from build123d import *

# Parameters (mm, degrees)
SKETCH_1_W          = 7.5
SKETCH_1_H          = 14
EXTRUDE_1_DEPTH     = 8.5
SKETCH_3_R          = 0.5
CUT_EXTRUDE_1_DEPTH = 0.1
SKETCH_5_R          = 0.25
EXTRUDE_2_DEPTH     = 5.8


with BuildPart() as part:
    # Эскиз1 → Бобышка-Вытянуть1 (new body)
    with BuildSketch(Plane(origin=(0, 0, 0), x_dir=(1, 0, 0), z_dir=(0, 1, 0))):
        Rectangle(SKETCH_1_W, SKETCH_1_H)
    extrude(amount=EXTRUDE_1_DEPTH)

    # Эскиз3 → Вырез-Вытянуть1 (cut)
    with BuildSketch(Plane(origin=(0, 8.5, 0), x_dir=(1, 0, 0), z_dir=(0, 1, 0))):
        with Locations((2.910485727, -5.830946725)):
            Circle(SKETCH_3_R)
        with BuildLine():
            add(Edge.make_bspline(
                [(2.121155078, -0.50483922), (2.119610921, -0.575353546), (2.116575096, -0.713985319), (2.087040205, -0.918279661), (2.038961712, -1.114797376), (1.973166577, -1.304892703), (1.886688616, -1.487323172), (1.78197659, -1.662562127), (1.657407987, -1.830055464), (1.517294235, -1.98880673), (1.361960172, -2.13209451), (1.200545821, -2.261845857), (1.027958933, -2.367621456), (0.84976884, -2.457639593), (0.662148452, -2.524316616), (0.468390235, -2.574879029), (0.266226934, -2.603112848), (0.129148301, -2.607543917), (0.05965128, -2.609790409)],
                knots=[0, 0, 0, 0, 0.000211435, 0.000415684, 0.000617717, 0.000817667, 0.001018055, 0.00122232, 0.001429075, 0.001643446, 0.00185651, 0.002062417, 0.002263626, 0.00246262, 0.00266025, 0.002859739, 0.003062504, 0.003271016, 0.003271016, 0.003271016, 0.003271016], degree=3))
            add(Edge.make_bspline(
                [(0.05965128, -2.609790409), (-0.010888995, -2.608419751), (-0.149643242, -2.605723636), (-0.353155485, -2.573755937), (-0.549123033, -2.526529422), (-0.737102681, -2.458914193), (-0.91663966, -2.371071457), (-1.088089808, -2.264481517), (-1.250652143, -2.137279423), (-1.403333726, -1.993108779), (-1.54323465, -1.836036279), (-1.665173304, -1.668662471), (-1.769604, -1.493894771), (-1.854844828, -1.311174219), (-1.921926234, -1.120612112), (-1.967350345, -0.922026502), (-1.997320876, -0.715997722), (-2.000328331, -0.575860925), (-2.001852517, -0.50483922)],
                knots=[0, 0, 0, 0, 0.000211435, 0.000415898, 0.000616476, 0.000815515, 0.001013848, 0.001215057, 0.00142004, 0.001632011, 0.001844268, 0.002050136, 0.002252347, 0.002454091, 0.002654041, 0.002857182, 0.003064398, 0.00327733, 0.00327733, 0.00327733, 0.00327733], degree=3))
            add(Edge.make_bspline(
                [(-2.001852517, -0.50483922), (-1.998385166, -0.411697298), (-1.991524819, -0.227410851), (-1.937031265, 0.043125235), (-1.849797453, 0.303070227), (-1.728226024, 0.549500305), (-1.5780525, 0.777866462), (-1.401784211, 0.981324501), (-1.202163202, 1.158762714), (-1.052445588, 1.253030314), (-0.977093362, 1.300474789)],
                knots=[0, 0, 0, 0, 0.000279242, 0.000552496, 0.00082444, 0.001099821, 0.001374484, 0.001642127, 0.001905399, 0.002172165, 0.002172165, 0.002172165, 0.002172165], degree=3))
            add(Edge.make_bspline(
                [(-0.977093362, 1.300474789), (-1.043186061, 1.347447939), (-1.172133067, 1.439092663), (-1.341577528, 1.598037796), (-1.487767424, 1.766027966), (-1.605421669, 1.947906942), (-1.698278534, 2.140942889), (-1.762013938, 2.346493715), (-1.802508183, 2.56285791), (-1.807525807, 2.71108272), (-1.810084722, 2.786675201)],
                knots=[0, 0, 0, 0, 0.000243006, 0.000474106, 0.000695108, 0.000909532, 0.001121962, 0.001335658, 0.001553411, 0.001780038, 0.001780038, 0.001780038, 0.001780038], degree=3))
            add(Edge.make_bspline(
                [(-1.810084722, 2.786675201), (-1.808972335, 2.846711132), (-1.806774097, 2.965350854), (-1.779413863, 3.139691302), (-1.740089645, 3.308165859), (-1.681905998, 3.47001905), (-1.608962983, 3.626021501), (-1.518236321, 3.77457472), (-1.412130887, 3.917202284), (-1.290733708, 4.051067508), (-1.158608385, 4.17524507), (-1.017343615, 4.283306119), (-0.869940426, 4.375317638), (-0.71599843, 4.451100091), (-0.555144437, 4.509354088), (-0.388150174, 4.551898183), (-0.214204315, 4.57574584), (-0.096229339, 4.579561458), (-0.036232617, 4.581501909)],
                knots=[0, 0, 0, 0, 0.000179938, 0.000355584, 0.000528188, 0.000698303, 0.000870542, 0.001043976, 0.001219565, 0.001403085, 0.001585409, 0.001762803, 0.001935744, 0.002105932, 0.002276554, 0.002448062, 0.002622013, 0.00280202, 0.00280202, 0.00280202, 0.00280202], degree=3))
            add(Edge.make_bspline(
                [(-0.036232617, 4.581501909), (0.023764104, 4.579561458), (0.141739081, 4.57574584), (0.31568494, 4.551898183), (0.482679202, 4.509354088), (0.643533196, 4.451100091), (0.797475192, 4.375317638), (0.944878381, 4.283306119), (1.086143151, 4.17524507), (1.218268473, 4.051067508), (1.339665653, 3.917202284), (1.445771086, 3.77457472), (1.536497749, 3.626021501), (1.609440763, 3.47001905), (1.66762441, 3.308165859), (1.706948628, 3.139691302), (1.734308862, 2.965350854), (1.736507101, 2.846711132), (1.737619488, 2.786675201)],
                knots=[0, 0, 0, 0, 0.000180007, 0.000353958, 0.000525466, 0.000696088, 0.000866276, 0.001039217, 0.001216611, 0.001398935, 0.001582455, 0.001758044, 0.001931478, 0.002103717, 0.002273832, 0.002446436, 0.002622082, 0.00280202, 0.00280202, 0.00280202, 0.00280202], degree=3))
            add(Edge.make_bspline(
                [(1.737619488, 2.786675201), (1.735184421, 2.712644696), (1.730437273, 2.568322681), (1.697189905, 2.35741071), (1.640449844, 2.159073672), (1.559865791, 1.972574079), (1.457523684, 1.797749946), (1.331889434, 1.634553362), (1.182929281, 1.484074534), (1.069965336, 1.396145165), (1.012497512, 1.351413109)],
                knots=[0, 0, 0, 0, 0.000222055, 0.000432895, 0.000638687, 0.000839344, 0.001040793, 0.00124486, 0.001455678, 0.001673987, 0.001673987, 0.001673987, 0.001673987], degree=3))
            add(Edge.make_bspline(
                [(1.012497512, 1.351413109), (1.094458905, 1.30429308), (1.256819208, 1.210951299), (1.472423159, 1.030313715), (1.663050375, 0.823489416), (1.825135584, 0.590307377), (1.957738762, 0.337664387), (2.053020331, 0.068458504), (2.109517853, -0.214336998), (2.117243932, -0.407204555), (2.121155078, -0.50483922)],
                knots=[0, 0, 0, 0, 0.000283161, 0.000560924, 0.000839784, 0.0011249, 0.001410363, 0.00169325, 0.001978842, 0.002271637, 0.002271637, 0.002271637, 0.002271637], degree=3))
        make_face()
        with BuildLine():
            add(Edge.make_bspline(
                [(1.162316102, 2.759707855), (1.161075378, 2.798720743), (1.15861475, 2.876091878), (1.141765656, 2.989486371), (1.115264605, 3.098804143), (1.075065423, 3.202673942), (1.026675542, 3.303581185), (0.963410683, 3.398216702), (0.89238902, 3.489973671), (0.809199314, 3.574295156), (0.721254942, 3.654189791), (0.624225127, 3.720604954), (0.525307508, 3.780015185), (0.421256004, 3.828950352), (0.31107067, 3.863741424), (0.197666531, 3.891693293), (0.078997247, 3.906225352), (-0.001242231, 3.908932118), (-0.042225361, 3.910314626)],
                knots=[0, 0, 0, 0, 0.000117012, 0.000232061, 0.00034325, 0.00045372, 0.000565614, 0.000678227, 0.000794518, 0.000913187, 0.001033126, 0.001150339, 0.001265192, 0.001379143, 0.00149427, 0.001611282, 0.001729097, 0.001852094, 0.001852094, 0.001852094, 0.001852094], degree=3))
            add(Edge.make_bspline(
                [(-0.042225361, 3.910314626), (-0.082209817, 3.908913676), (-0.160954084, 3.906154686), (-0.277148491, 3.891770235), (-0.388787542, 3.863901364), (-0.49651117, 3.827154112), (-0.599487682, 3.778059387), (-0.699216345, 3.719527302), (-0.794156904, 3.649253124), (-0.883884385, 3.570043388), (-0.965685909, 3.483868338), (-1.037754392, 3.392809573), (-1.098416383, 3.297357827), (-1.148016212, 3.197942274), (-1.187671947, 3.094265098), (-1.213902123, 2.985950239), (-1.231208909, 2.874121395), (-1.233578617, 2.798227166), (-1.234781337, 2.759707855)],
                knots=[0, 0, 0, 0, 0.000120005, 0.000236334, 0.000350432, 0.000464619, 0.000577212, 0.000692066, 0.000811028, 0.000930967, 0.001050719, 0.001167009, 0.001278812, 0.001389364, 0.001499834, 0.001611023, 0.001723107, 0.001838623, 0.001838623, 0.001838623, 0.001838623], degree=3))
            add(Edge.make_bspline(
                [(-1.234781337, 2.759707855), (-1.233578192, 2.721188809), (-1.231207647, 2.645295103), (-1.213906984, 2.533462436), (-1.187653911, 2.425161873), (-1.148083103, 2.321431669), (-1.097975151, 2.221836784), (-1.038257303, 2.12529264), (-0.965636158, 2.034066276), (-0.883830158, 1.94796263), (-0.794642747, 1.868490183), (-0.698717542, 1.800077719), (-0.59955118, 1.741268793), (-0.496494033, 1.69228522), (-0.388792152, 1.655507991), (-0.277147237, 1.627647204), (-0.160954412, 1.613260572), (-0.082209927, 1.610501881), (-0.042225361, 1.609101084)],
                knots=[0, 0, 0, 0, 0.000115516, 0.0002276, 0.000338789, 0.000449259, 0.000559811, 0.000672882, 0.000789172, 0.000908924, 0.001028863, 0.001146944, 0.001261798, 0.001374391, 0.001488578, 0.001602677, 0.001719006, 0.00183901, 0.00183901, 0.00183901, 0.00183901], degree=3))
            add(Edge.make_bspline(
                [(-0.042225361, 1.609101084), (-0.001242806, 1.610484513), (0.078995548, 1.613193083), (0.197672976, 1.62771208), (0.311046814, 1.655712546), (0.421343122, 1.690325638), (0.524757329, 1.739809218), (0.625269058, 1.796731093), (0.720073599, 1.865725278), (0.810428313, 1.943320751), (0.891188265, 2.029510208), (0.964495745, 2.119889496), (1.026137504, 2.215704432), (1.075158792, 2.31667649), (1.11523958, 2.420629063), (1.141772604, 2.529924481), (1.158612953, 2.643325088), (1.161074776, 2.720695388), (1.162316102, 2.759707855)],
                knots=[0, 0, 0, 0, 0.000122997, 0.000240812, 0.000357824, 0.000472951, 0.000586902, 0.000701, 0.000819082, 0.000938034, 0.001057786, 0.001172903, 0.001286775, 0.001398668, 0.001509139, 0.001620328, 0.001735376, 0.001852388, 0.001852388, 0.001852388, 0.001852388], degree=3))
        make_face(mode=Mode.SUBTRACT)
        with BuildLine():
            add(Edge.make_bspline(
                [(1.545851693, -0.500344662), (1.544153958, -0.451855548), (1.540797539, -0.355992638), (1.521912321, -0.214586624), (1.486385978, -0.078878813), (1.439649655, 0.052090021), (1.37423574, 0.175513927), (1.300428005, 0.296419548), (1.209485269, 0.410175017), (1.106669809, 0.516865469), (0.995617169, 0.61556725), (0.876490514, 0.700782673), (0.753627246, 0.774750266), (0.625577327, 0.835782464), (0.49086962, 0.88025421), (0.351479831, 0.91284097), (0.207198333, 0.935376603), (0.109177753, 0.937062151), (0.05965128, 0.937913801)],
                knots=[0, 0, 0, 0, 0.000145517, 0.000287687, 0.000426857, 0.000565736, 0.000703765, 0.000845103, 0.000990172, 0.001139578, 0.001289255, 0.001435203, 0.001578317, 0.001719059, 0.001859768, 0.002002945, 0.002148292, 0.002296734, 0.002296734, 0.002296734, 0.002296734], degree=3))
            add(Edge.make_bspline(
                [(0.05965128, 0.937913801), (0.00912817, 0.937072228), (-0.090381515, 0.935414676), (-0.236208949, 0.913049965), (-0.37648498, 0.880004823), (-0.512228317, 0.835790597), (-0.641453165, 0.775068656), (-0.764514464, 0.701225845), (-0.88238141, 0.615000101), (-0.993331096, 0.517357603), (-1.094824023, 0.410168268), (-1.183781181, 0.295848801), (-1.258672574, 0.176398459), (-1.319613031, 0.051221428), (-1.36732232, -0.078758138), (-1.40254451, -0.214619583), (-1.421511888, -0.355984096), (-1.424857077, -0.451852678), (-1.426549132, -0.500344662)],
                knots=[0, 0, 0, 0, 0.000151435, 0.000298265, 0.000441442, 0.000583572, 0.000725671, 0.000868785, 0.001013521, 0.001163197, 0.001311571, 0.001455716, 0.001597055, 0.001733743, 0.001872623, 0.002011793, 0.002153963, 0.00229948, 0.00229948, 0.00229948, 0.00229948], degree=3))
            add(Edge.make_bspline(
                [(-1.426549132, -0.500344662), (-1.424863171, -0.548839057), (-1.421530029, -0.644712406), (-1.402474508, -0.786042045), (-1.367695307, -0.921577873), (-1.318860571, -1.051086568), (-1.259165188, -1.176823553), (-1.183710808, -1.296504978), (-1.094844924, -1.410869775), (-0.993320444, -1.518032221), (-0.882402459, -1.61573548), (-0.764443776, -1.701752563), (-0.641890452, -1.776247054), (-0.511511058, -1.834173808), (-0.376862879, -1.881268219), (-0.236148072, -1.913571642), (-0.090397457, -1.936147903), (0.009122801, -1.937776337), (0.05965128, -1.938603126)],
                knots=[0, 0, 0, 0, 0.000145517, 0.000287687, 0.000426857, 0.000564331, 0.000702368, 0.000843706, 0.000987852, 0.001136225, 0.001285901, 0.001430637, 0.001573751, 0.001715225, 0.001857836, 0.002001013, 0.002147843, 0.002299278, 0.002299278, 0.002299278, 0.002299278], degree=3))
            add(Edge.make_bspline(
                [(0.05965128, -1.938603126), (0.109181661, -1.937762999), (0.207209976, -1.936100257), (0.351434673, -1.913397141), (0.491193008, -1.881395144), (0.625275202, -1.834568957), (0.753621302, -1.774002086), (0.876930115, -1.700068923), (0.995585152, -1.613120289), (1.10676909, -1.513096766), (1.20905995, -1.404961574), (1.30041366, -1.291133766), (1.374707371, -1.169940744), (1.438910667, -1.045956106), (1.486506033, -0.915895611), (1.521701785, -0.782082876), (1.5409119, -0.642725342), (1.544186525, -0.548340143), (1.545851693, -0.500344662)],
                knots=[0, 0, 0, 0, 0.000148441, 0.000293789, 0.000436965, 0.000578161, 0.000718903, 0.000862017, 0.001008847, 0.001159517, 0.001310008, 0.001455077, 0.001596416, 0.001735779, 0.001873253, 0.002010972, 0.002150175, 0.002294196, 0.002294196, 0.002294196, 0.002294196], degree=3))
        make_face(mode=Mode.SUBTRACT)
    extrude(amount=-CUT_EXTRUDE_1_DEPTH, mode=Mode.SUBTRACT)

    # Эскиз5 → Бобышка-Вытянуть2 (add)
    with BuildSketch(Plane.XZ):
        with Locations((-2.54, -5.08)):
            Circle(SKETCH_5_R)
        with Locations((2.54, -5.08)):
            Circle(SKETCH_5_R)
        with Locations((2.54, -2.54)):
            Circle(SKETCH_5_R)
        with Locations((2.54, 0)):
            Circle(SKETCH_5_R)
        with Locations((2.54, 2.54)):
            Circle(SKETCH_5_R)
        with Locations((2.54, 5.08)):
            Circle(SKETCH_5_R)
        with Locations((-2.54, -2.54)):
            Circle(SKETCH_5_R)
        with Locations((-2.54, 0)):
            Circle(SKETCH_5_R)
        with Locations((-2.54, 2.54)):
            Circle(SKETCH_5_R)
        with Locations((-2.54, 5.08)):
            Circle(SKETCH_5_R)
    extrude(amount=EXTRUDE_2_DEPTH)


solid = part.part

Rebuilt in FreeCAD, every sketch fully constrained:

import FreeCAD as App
import Part
import Sketcher
Q = App.Units.Quantity

doc = App.newDocument("Part")
body = doc.addObject("PartDesign::Body", "Body")

sketch1 = body.newObject("Sketcher::SketchObject", "Sketch")
sketch1.AttachmentSupport = (doc.getObject("XZ_Plane"), [""])
sketch1.MapMode = "FlatFace"
sketch1.addGeometry(Part.LineSegment(App.Vector(-4, -7, 0), App.Vector(-4, 7, 0)), False)
sketch1.addGeometry(Part.LineSegment(App.Vector(-4, 7, 0), App.Vector(4, 7, 0)), False)
sketch1.addGeometry(Part.LineSegment(App.Vector(4, 7, 0), App.Vector(4, -7, 0)), False)
sketch1.addGeometry(Part.LineSegment(App.Vector(4, -7, 0), App.Vector(-4, -7, 0)), False)
sketch1.addConstraint(Sketcher.Constraint("Coincident", 0, 2, 1, 1))
sketch1.addConstraint(Sketcher.Constraint("Coincident", 1, 2, 2, 1))
sketch1.addConstraint(Sketcher.Constraint("Coincident", 2, 2, 3, 1))
sketch1.addConstraint(Sketcher.Constraint("Coincident", 3, 2, 0, 1))
sketch1.addConstraint(Sketcher.Constraint("Vertical", 0))
sketch1.addConstraint(Sketcher.Constraint("Horizontal", 1))
sketch1.addConstraint(Sketcher.Constraint("Vertical", 2))
sketch1.addConstraint(Sketcher.Constraint("Horizontal", 3))
sketch1.addConstraint(Sketcher.Constraint("Symmetric", 0, 2, 2, 2, -1, 1))
sketch1.addConstraint(Sketcher.Constraint("DistanceY", 0, 1, 0, 2, Q("14 mm")))
sketch1.addConstraint(Sketcher.Constraint("DistanceX", 1, 1, 1, 2, Q("7.5 mm")))
pad1 = body.newObject("PartDesign::Pad", "Pad")
pad1.Profile = sketch1
pad1.Length = 8.5
pad1.Reversed = True

sketch2 = body.newObject("Sketcher::SketchObject", "Sketch001")
sketch2.AttachmentSupport = (doc.getObject("XZ_Plane"), [""])
sketch2.MapMode = "FlatFace"
sketch2.AttachmentOffset = App.Placement(App.Vector(0, 0, -8.5), App.Rotation())
sketch2.addGeometry(Part.Circle(App.Vector(2.910486, 5.830947, 0), App.Vector(0, 0, 1), 0.5), False)
sketch2.addGeometry(Part.BSplineCurve([App.Vector(2.121155, 0.504839, 0), App.Vector(2.119611, 0.575354, 0), App.Vector(2.116575, 0.713985, 0), App.Vector(2.08704, 0.91828, 0), App.Vector(2.038962, 1.114797, 0), App.Vector(1.973167, 1.304893, 0), App.Vector(1.886689, 1.487323, 0), App.Vector(1.781977, 1.662562, 0), App.Vector(1.657408, 1.830055, 0), App.Vector(1.517294, 1.988807, 0), App.Vector(1.36196, 2.132095, 0), App.Vector(1.200546, 2.261846, 0), App.Vector(1.027959, 2.367621, 0), App.Vector(0.849769, 2.45764, 0), App.Vector(0.662148, 2.524317, 0), App.Vector(0.46839, 2.574879, 0), App.Vector(0.266227, 2.603113, 0), App.Vector(0.129148, 2.607544, 0), App.Vector(0.059651, 2.60979, 0)], [4, 1, 1, 1, 1, 1, 1, 1, 1, 1, 1, 1, 1, 1, 1, 1, 4], [0, 0.000211435, 0.000415684, 0.000617717, 0.000817667, 0.001018055, 0.00122232, 0.001429075, 0.001643446, 0.00185651, 0.002062417, 0.002263626, 0.00246262, 0.00266025, 0.002859739, 0.003062504, 0.003271016], False, 3, [1, 1, 1, 1, 1, 1, 1, 1, 1, 1, 1, 1, 1, 1, 1, 1, 1, 1, 1], False), False)
sketch2.addGeometry(Part.BSplineCurve([App.Vector(1.012498, -1.351413, 0), App.Vector(1.094459, -1.304293, 0), App.Vector(1.256819, -1.210951, 0), App.Vector(1.472423, -1.030314, 0), App.Vector(1.66305, -0.823489, 0), App.Vector(1.825136, -0.590307, 0), App.Vector(1.957739, -0.337664, 0), App.Vector(2.05302, -0.068459, 0), App.Vector(2.109518, 0.214337, 0), App.Vector(2.117244, 0.407205, 0), App.Vector(2.121155, 0.504839, 0)], [4, 1, 1, 1, 1, 1, 1, 1, 4], [0, 0.000283161, 0.000560924, 0.000839784, 0.0011249, 0.001410363, 0.00169325, 0.001978842, 0.002271637], False, 3, [1, 1, 1, 1, 1, 1, 1, 1, 1, 1, 1], False), False)
sketch2.addGeometry(Part.BSplineCurve([App.Vector(1.737619, -2.786675, 0), App.Vector(1.735184, -2.712645, 0), App.Vector(1.730437, -2.568323, 0), App.Vector(1.69719, -2.357411, 0), App.Vector(1.64045, -2.159074, 0), App.Vector(1.559866, -1.972574, 0), App.Vector(1.457524, -1.79775, 0), App.Vector(1.331889, -1.634553, 0), App.Vector(1.182929, -1.484075, 0), App.Vector(1.069965, -1.396145, 0), App.Vector(1.012498, -1.351413, 0)], [4, 1, 1, 1, 1, 1, 1, 1, 4], [0, 0.000222055, 0.000432895, 0.000638687, 0.000839344, 0.001040793, 0.00124486, 0.001455678, 0.001673987], False, 3, [1, 1, 1, 1, 1, 1, 1, 1, 1, 1, 1], False), False)
sketch2.addGeometry(Part.BSplineCurve([App.Vector(-0.036233, -4.581502, 0), App.Vector(0.023764, -4.579561, 0), App.Vector(0.141739, -4.575746, 0), App.Vector(0.315685, -4.551898, 0), App.Vector(0.482679, -4.509354, 0), App.Vector(0.643533, -4.4511, 0), App.Vector(0.797475, -4.375318, 0), App.Vector(0.944878, -4.283306, 0), App.Vector(1.086143, -4.175245, 0), App.Vector(1.218268, -4.051068, 0), App.Vector(1.339666, -3.917202, 0), App.Vector(1.445771, -3.774575, 0), App.Vector(1.536498, -3.626022, 0), App.Vector(1.609441, -3.470019, 0), App.Vector(1.667624, -3.308166, 0), App.Vector(1.706949, -3.139691, 0), App.Vector(1.734309, -2.965351, 0), App.Vector(1.736507, -2.846711, 0), App.Vector(1.737619, -2.786675, 0)], [4, 1, 1, 1, 1, 1, 1, 1, 1, 1, 1, 1, 1, 1, 1, 1, 4], [0, 0.000180007, 0.000353958, 0.000525466, 0.000696088, 0.000866276, 0.001039217, 0.001216611, 0.001398935, 0.001582455, 0.001758044, 0.001931478, 0.002103717, 0.002273832, 0.002446436, 0.002622082, 0.00280202], False, 3, [1, 1, 1, 1, 1, 1, 1, 1, 1, 1, 1, 1, 1, 1, 1, 1, 1, 1, 1], False), False)
sketch2.addGeometry(Part.BSplineCurve([App.Vector(-1.810085, -2.786675, 0), App.Vector(-1.808972, -2.846711, 0), App.Vector(-1.806774, -2.965351, 0), App.Vector(-1.779414, -3.139691, 0), App.Vector(-1.74009, -3.308166, 0), App.Vector(-1.681906, -3.470019, 0), App.Vector(-1.608963, -3.626022, 0), App.Vector(-1.518236, -3.774575, 0), App.Vector(-1.412131, -3.917202, 0), App.Vector(-1.290734, -4.051068, 0), App.Vector(-1.158608, -4.175245, 0), App.Vector(-1.017344, -4.283306, 0), App.Vector(-0.86994, -4.375318, 0), App.Vector(-0.715998, -4.4511, 0), App.Vector(-0.555144, -4.509354, 0), App.Vector(-0.38815, -4.551898, 0), App.Vector(-0.214204, -4.575746, 0), App.Vector(-0.096229, -4.579561, 0), App.Vector(-0.036233, -4.581502, 0)], [4, 1, 1, 1, 1, 1, 1, 1, 1, 1, 1, 1, 1, 1, 1, 1, 4], [0, 0.000179938, 0.000355584, 0.000528188, 0.000698303, 0.000870542, 0.001043976, 0.001219565, 0.001403085, 0.001585409, 0.001762803, 0.001935744, 0.002105932, 0.002276554, 0.002448062, 0.002622013, 0.00280202], False, 3, [1, 1, 1, 1, 1, 1, 1, 1, 1, 1, 1, 1, 1, 1, 1, 1, 1, 1, 1], False), False)
sketch2.addGeometry(Part.BSplineCurve([App.Vector(-0.977093, -1.300475, 0), App.Vector(-1.043186, -1.347448, 0), App.Vector(-1.172133, -1.439093, 0), App.Vector(-1.341578, -1.598038, 0), App.Vector(-1.487767, -1.766028, 0), App.Vector(-1.605422, -1.947907, 0), App.Vector(-1.698279, -2.140943, 0), App.Vector(-1.762014, -2.346494, 0), App.Vector(-1.802508, -2.562858, 0), App.Vector(-1.807526, -2.711083, 0), App.Vector(-1.810085, -2.786675, 0)], [4, 1, 1, 1, 1, 1, 1, 1, 4], [0, 0.000243006, 0.000474106, 0.000695108, 0.000909532, 0.001121962, 0.001335658, 0.001553411, 0.001780038], False, 3, [1, 1, 1, 1, 1, 1, 1, 1, 1, 1, 1], False), False)
sketch2.addGeometry(Part.BSplineCurve([App.Vector(-2.001853, 0.504839, 0), App.Vector(-1.998385, 0.411697, 0), App.Vector(-1.991525, 0.227411, 0), App.Vector(-1.937031, -0.043125, 0), App.Vector(-1.849797, -0.30307, 0), App.Vector(-1.728226, -0.5495, 0), App.Vector(-1.578053, -0.777866, 0), App.Vector(-1.401784, -0.981325, 0), App.Vector(-1.202163, -1.158763, 0), App.Vector(-1.052446, -1.25303, 0), App.Vector(-0.977093, -1.300475, 0)], [4, 1, 1, 1, 1, 1, 1, 1, 4], [0, 0.000279242, 0.000552496, 0.00082444, 0.001099821, 0.001374484, 0.001642127, 0.001905399, 0.002172165], False, 3, [1, 1, 1, 1, 1, 1, 1, 1, 1, 1, 1], False), False)
sketch2.addGeometry(Part.BSplineCurve([App.Vector(0.059651, 2.60979, 0), App.Vector(-0.010889, 2.60842, 0), App.Vector(-0.149643, 2.605724, 0), App.Vector(-0.353155, 2.573756, 0), App.Vector(-0.549123, 2.526529, 0), App.Vector(-0.737103, 2.458914, 0), App.Vector(-0.91664, 2.371071, 0), App.Vector(-1.08809, 2.264482, 0), App.Vector(-1.250652, 2.137279, 0), App.Vector(-1.403334, 1.993109, 0), App.Vector(-1.543235, 1.836036, 0), App.Vector(-1.665173, 1.668662, 0), App.Vector(-1.769604, 1.493895, 0), App.Vector(-1.854845, 1.311174, 0), App.Vector(-1.921926, 1.120612, 0), App.Vector(-1.96735, 0.922027, 0), App.Vector(-1.997321, 0.715998, 0), App.Vector(-2.000328, 0.575861, 0), App.Vector(-2.001853, 0.504839, 0)], [4, 1, 1, 1, 1, 1, 1, 1, 1, 1, 1, 1, 1, 1, 1, 1, 4], [0, 0.000211435, 0.000415898, 0.000616476, 0.000815515, 0.001013848, 0.001215057, 0.00142004, 0.001632011, 0.001844268, 0.002050136, 0.002252347, 0.002454091, 0.002654041, 0.002857182, 0.003064398, 0.00327733], False, 3, [1, 1, 1, 1, 1, 1, 1, 1, 1, 1, 1, 1, 1, 1, 1, 1, 1, 1, 1], False), False)
sketch2.addGeometry(Part.BSplineCurve([App.Vector(0.059651, 1.938603, 0), App.Vector(0.109182, 1.937763, 0), App.Vector(0.20721, 1.9361, 0), App.Vector(0.351435, 1.913397, 0), App.Vector(0.491193, 1.881395, 0), App.Vector(0.625275, 1.834569, 0), App.Vector(0.753621, 1.774002, 0), App.Vector(0.87693, 1.700069, 0), App.Vector(0.995585, 1.61312, 0), App.Vector(1.106769, 1.513097, 0), App.Vector(1.20906, 1.404962, 0), App.Vector(1.300414, 1.291134, 0), App.Vector(1.374707, 1.169941, 0), App.Vector(1.438911, 1.045956, 0), App.Vector(1.486506, 0.915896, 0), App.Vector(1.521702, 0.782083, 0), App.Vector(1.540912, 0.642725, 0), App.Vector(1.544187, 0.54834, 0), App.Vector(1.545852, 0.500345, 0)], [4, 1, 1, 1, 1, 1, 1, 1, 1, 1, 1, 1, 1, 1, 1, 1, 4], [0, 0.000148441, 0.000293789, 0.000436965, 0.000578161, 0.000718903, 0.000862017, 0.001008847, 0.001159517, 0.001310008, 0.001455077, 0.001596416, 0.001735779, 0.001873253, 0.002010972, 0.002150175, 0.002294196], False, 3, [1, 1, 1, 1, 1, 1, 1, 1, 1, 1, 1, 1, 1, 1, 1, 1, 1, 1, 1], False), False)
sketch2.addGeometry(Part.BSplineCurve([App.Vector(-1.426549, 0.500345, 0), App.Vector(-1.424863, 0.548839, 0), App.Vector(-1.42153, 0.644712, 0), App.Vector(-1.402475, 0.786042, 0), App.Vector(-1.367695, 0.921578, 0), App.Vector(-1.318861, 1.051087, 0), App.Vector(-1.259165, 1.176824, 0), App.Vector(-1.183711, 1.296505, 0), App.Vector(-1.094845, 1.41087, 0), App.Vector(-0.99332, 1.518032, 0), App.Vector(-0.882402, 1.615735, 0), App.Vector(-0.764444, 1.701753, 0), App.Vector(-0.64189, 1.776247, 0), App.Vector(-0.511511, 1.834174, 0), App.Vector(-0.376863, 1.881268, 0), App.Vector(-0.236148, 1.913572, 0), App.Vector(-0.090397, 1.936148, 0), App.Vector(0.009123, 1.937776, 0), App.Vector(0.059651, 1.938603, 0)], [4, 1, 1, 1, 1, 1, 1, 1, 1, 1, 1, 1, 1, 1, 1, 1, 4], [0, 0.000145517, 0.000287687, 0.000426857, 0.000564331, 0.000702368, 0.000843706, 0.000987852, 0.001136225, 0.001285901, 0.001430637, 0.001573751, 0.001715225, 0.001857836, 0.002001013, 0.002147843, 0.002299278], False, 3, [1, 1, 1, 1, 1, 1, 1, 1, 1, 1, 1, 1, 1, 1, 1, 1, 1, 1, 1], False), False)
sketch2.addGeometry(Part.BSplineCurve([App.Vector(0.059651, -0.937914, 0), App.Vector(0.009128, -0.937072, 0), App.Vector(-0.090382, -0.935415, 0), App.Vector(-0.236209, -0.91305, 0), App.Vector(-0.376485, -0.880005, 0), App.Vector(-0.512228, -0.835791, 0), App.Vector(-0.641453, -0.775069, 0), App.Vector(-0.764514, -0.701226, 0), App.Vector(-0.882381, -0.615, 0), App.Vector(-0.993331, -0.517358, 0), App.Vector(-1.094824, -0.410168, 0), App.Vector(-1.183781, -0.295849, 0), App.Vector(-1.258673, -0.176398, 0), App.Vector(-1.319613, -0.051221, 0), App.Vector(-1.367322, 0.078758, 0), App.Vector(-1.402545, 0.21462, 0), App.Vector(-1.421512, 0.355984, 0), App.Vector(-1.424857, 0.451853, 0), App.Vector(-1.426549, 0.500345, 0)], [4, 1, 1, 1, 1, 1, 1, 1, 1, 1, 1, 1, 1, 1, 1, 1, 4], [0, 0.000151435, 0.000298265, 0.000441442, 0.000583572, 0.000725671, 0.000868785, 0.001013521, 0.001163197, 0.001311571, 0.001455716, 0.001597055, 0.001733743, 0.001872623, 0.002011793, 0.002153963, 0.00229948], False, 3, [1, 1, 1, 1, 1, 1, 1, 1, 1, 1, 1, 1, 1, 1, 1, 1, 1, 1, 1], False), False)
sketch2.addGeometry(Part.BSplineCurve([App.Vector(1.545852, 0.500345, 0), App.Vector(1.544154, 0.451856, 0), App.Vector(1.540798, 0.355993, 0), App.Vector(1.521912, 0.214587, 0), App.Vector(1.486386, 0.078879, 0), App.Vector(1.43965, -0.05209, 0), App.Vector(1.374236, -0.175514, 0), App.Vector(1.300428, -0.29642, 0), App.Vector(1.209485, -0.410175, 0), App.Vector(1.10667, -0.516865, 0), App.Vector(0.995617, -0.615567, 0), App.Vector(0.876491, -0.700783, 0), App.Vector(0.753627, -0.77475, 0), App.Vector(0.625577, -0.835782, 0), App.Vector(0.49087, -0.880254, 0), App.Vector(0.35148, -0.912841, 0), App.Vector(0.207198, -0.935377, 0), App.Vector(0.109178, -0.937062, 0), App.Vector(0.059651, -0.937914, 0)], [4, 1, 1, 1, 1, 1, 1, 1, 1, 1, 1, 1, 1, 1, 1, 1, 4], [0, 0.000145517, 0.000287687, 0.000426857, 0.000565736, 0.000703765, 0.000845103, 0.000990172, 0.001139578, 0.001289255, 0.001435203, 0.001578317, 0.001719059, 0.001859768, 0.002002945, 0.002148292, 0.002296734], False, 3, [1, 1, 1, 1, 1, 1, 1, 1, 1, 1, 1, 1, 1, 1, 1, 1, 1, 1, 1], False), False)
sketch2.addGeometry(Part.BSplineCurve([App.Vector(-0.042225, -1.609101, 0), App.Vector(-0.001243, -1.610485, 0), App.Vector(0.078996, -1.613193, 0), App.Vector(0.197673, -1.627712, 0), App.Vector(0.311047, -1.655713, 0), App.Vector(0.421343, -1.690326, 0), App.Vector(0.524757, -1.739809, 0), App.Vector(0.625269, -1.796731, 0), App.Vector(0.720074, -1.865725, 0), App.Vector(0.810428, -1.943321, 0), App.Vector(0.891188, -2.02951, 0), App.Vector(0.964496, -2.119889, 0), App.Vector(1.026138, -2.215704, 0), App.Vector(1.075159, -2.316676, 0), App.Vector(1.11524, -2.420629, 0), App.Vector(1.141773, -2.529924, 0), App.Vector(1.158613, -2.643325, 0), App.Vector(1.161075, -2.720695, 0), App.Vector(1.162316, -2.759708, 0)], [4, 1, 1, 1, 1, 1, 1, 1, 1, 1, 1, 1, 1, 1, 1, 1, 4], [0, 0.000122997, 0.000240812, 0.000357824, 0.000472951, 0.000586902, 0.000701, 0.000819082, 0.000938034, 0.001057786, 0.001172903, 0.001286775, 0.001398668, 0.001509139, 0.001620328, 0.001735376, 0.001852388], False, 3, [1, 1, 1, 1, 1, 1, 1, 1, 1, 1, 1, 1, 1, 1, 1, 1, 1, 1, 1], False), False)
sketch2.addGeometry(Part.BSplineCurve([App.Vector(-1.234781, -2.759708, 0), App.Vector(-1.233578, -2.721189, 0), App.Vector(-1.231208, -2.645295, 0), App.Vector(-1.213907, -2.533462, 0), App.Vector(-1.187654, -2.425162, 0), App.Vector(-1.148083, -2.321432, 0), App.Vector(-1.097975, -2.221837, 0), App.Vector(-1.038257, -2.125293, 0), App.Vector(-0.965636, -2.034066, 0), App.Vector(-0.88383, -1.947963, 0), App.Vector(-0.794643, -1.86849, 0), App.Vector(-0.698718, -1.800078, 0), App.Vector(-0.599551, -1.741269, 0), App.Vector(-0.496494, -1.692285, 0), App.Vector(-0.388792, -1.655508, 0), App.Vector(-0.277147, -1.627647, 0), App.Vector(-0.160954, -1.613261, 0), App.Vector(-0.08221, -1.610502, 0), App.Vector(-0.042225, -1.609101, 0)], [4, 1, 1, 1, 1, 1, 1, 1, 1, 1, 1, 1, 1, 1, 1, 1, 4], [0, 0.000115516, 0.0002276, 0.000338789, 0.000449259, 0.000559811, 0.000672882, 0.000789172, 0.000908924, 0.001028863, 0.001146944, 0.001261798, 0.001374391, 0.001488578, 0.001602677, 0.001719006, 0.00183901], False, 3, [1, 1, 1, 1, 1, 1, 1, 1, 1, 1, 1, 1, 1, 1, 1, 1, 1, 1, 1], False), False)
sketch2.addGeometry(Part.BSplineCurve([App.Vector(-0.042225, -3.910315, 0), App.Vector(-0.08221, -3.908914, 0), App.Vector(-0.160954, -3.906155, 0), App.Vector(-0.277148, -3.89177, 0), App.Vector(-0.388788, -3.863901, 0), App.Vector(-0.496511, -3.827154, 0), App.Vector(-0.599488, -3.778059, 0), App.Vector(-0.699216, -3.719527, 0), App.Vector(-0.794157, -3.649253, 0), App.Vector(-0.883884, -3.570043, 0), App.Vector(-0.965686, -3.483868, 0), App.Vector(-1.037754, -3.39281, 0), App.Vector(-1.098416, -3.297358, 0), App.Vector(-1.148016, -3.197942, 0), App.Vector(-1.187672, -3.094265, 0), App.Vector(-1.213902, -2.98595, 0), App.Vector(-1.231209, -2.874121, 0), App.Vector(-1.233579, -2.798227, 0), App.Vector(-1.234781, -2.759708, 0)], [4, 1, 1, 1, 1, 1, 1, 1, 1, 1, 1, 1, 1, 1, 1, 1, 4], [0, 0.000120005, 0.000236334, 0.000350432, 0.000464619, 0.000577212, 0.000692066, 0.000811028, 0.000930967, 0.001050719, 0.001167009, 0.001278812, 0.001389364, 0.001499834, 0.001611023, 0.001723107, 0.001838623], False, 3, [1, 1, 1, 1, 1, 1, 1, 1, 1, 1, 1, 1, 1, 1, 1, 1, 1, 1, 1], False), False)
sketch2.addGeometry(Part.BSplineCurve([App.Vector(1.162316, -2.759708, 0), App.Vector(1.161075, -2.798721, 0), App.Vector(1.158615, -2.876092, 0), App.Vector(1.141766, -2.989486, 0), App.Vector(1.115265, -3.098804, 0), App.Vector(1.075065, -3.202674, 0), App.Vector(1.026676, -3.303581, 0), App.Vector(0.963411, -3.398217, 0), App.Vector(0.892389, -3.489974, 0), App.Vector(0.809199, -3.574295, 0), App.Vector(0.721255, -3.65419, 0), App.Vector(0.624225, -3.720605, 0), App.Vector(0.525308, -3.780015, 0), App.Vector(0.421256, -3.82895, 0), App.Vector(0.311071, -3.863741, 0), App.Vector(0.197667, -3.891693, 0), App.Vector(0.078997, -3.906225, 0), App.Vector(-0.001242, -3.908932, 0), App.Vector(-0.042225, -3.910315, 0)], [4, 1, 1, 1, 1, 1, 1, 1, 1, 1, 1, 1, 1, 1, 1, 1, 4], [0, 0.000117012, 0.000232061, 0.00034325, 0.00045372, 0.000565614, 0.000678227, 0.000794518, 0.000913187, 0.001033126, 0.001150339, 0.001265192, 0.001379143, 0.00149427, 0.001611282, 0.001729097, 0.001852094], False, 3, [1, 1, 1, 1, 1, 1, 1, 1, 1, 1, 1, 1, 1, 1, 1, 1, 1, 1, 1], False), False)
sketch2.addConstraint(Sketcher.Constraint("Block", 1))
sketch2.addConstraint(Sketcher.Constraint("Block", 2))
sketch2.addConstraint(Sketcher.Constraint("Block", 3))
sketch2.addConstraint(Sketcher.Constraint("Block", 4))
sketch2.addConstraint(Sketcher.Constraint("Block", 5))
sketch2.addConstraint(Sketcher.Constraint("Block", 6))
sketch2.addConstraint(Sketcher.Constraint("Block", 7))
sketch2.addConstraint(Sketcher.Constraint("Block", 8))
sketch2.addConstraint(Sketcher.Constraint("Block", 9))
sketch2.addConstraint(Sketcher.Constraint("Block", 10))
sketch2.addConstraint(Sketcher.Constraint("Block", 11))
sketch2.addConstraint(Sketcher.Constraint("Block", 12))
sketch2.addConstraint(Sketcher.Constraint("Block", 13))
sketch2.addConstraint(Sketcher.Constraint("Block", 14))
sketch2.addConstraint(Sketcher.Constraint("Block", 15))
sketch2.addConstraint(Sketcher.Constraint("Block", 16))
sketch2.addConstraint(Sketcher.Constraint("Diameter", 0, Q("1 mm")))
sketch2.addConstraint(Sketcher.Constraint("DistanceX", -1, 1, 0, 3, Q("2.910486 mm")))
sketch2.addConstraint(Sketcher.Constraint("DistanceY", -1, 1, 0, 3, Q("5.830947 mm")))
pocket1 = body.newObject("PartDesign::Pocket", "Pocket")
pocket1.Profile = sketch2
pocket1.Length = 0.1
pocket1.Reversed = True

sketch3 = body.newObject("Sketcher::SketchObject", "Sketch002")
sketch3.AttachmentSupport = (doc.getObject("XZ_Plane"), [""])
sketch3.MapMode = "FlatFace"
sketch3.addGeometry(Part.Circle(App.Vector(-2.54, -5.08, 0), App.Vector(0, 0, 1), 0.25), False)
sketch3.addGeometry(Part.Circle(App.Vector(2.54, -5.08, 0), App.Vector(0, 0, 1), 0.25), False)
sketch3.addGeometry(Part.Circle(App.Vector(2.54, -2.54, 0), App.Vector(0, 0, 1), 0.25), False)
sketch3.addGeometry(Part.Circle(App.Vector(2.54, 0, 0), App.Vector(0, 0, 1), 0.25), False)
sketch3.addGeometry(Part.Circle(App.Vector(2.54, 2.54, 0), App.Vector(0, 0, 1), 0.25), False)
sketch3.addGeometry(Part.Circle(App.Vector(2.54, 5.08, 0), App.Vector(0, 0, 1), 0.25), False)
sketch3.addGeometry(Part.Circle(App.Vector(-2.54, -2.54, 0), App.Vector(0, 0, 1), 0.25), False)
sketch3.addGeometry(Part.Circle(App.Vector(-2.54, 0, 0), App.Vector(0, 0, 1), 0.25), False)
sketch3.addGeometry(Part.Circle(App.Vector(-2.54, 2.54, 0), App.Vector(0, 0, 1), 0.25), False)
sketch3.addGeometry(Part.Circle(App.Vector(-2.54, 5.08, 0), App.Vector(0, 0, 1), 0.25), False)
sketch3.addConstraint(Sketcher.Constraint("Equal", 0, 1))
sketch3.addConstraint(Sketcher.Constraint("Equal", 1, 2))
sketch3.addConstraint(Sketcher.Constraint("Equal", 2, 3))
sketch3.addConstraint(Sketcher.Constraint("Equal", 3, 4))
sketch3.addConstraint(Sketcher.Constraint("Equal", 4, 5))
sketch3.addConstraint(Sketcher.Constraint("Equal", 5, 6))
sketch3.addConstraint(Sketcher.Constraint("Equal", 6, 7))
sketch3.addConstraint(Sketcher.Constraint("Equal", 7, 8))
sketch3.addConstraint(Sketcher.Constraint("Equal", 8, 9))
sketch3.addConstraint(Sketcher.Constraint("Symmetric", 0, 3, 5, 3, -1, 1))
sketch3.addConstraint(Sketcher.Constraint("Symmetric", 4, 3, 6, 3, -1, 1))
sketch3.addConstraint(Sketcher.Constraint("Symmetric", 3, 3, 7, 3, -1, 1))
sketch3.addConstraint(Sketcher.Constraint("Symmetric", 2, 3, 8, 3, -1, 1))
sketch3.addConstraint(Sketcher.Constraint("Symmetric", 1, 3, 9, 3, -1, 1))
sketch3.addConstraint(Sketcher.Constraint("Symmetric", 0, 3, 1, 3, -2))
sketch3.addConstraint(Sketcher.Constraint("Symmetric", 2, 3, 6, 3, -2))
sketch3.addConstraint(Sketcher.Constraint("PointOnObject", 3, 3, -1))
sketch3.addConstraint(Sketcher.Constraint("Vertical", 1, 3, 2, 3))
sketch3.addConstraint(Sketcher.Constraint("Vertical", 2, 3, 3, 3))
sketch3.addConstraint(Sketcher.Constraint("Diameter", 0, Q("0.5 mm")))
sketch3.addConstraint(Sketcher.Constraint("DistanceX", 0, 3, -1, 1, Q("2.54 mm")))
sketch3.addConstraint(Sketcher.Constraint("DistanceY", 0, 3, -1, 1, Q("5.08 mm")))
sketch3.addConstraint(Sketcher.Constraint("DistanceY", 2, 3, -1, 1, Q("2.54 mm")))
pad2 = body.newObject("PartDesign::Pad", "Pad001")
pad2.Profile = sketch3
pad2.Length = 5.8

doc.recompute()
